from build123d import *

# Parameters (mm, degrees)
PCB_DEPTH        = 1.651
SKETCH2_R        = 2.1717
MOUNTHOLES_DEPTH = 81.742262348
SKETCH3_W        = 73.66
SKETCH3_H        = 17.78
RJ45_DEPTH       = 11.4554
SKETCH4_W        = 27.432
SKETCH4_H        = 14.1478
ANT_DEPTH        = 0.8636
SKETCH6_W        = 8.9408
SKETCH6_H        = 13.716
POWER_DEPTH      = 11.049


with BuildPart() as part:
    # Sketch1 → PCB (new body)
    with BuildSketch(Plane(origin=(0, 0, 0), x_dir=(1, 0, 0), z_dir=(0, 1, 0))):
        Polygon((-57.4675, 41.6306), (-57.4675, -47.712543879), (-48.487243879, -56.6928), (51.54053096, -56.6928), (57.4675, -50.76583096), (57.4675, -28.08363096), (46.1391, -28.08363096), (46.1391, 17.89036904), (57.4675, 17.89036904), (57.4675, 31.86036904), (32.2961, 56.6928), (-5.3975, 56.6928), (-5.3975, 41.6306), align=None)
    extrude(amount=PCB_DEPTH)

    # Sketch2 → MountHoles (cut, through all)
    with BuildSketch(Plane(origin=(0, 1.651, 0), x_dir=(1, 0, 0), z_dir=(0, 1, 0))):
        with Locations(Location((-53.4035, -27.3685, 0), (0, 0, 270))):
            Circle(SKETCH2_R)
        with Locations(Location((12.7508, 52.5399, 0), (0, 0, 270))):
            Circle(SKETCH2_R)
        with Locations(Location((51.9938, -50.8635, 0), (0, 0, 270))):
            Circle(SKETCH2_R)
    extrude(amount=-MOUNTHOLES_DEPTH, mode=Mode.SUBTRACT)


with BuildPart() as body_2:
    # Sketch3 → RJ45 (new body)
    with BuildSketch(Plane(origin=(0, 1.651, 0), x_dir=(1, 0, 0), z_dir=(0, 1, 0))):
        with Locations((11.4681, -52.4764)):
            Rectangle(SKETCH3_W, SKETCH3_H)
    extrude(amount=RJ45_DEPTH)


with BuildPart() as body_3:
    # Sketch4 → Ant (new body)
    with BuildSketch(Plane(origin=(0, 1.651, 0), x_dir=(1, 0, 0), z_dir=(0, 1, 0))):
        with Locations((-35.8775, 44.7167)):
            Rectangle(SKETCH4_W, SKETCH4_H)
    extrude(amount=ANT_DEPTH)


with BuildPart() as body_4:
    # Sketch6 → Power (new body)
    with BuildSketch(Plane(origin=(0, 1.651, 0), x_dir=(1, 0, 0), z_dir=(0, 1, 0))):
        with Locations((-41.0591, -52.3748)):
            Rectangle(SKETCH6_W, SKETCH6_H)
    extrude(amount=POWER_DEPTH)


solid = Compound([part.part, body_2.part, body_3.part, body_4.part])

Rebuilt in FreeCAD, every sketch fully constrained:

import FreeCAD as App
import Part
import Sketcher
from FreeCAD import Vector
Q = App.Units.Quantity

doc = App.newDocument("Part")
body = doc.addObject("PartDesign::Body", "Body")

sketch1 = body.newObject("Sketcher::SketchObject", "Sketch")
sketch1.AttachmentSupport = (doc.getObject("XZ_Plane"), [""])
sketch1.MapMode = "FlatFace"
sketch1.addGeometry(Part.LineSegment(Vector(-57.4675, -41.6306, 0), Vector(-57.4675, 47.712544, 0)), False)
sketch1.addGeometry(Part.LineSegment(Vector(-57.4675, 47.712544, 0), Vector(-48.487244, 56.6928, 0)), False)
sketch1.addGeometry(Part.LineSegment(Vector(-48.487244, 56.6928, 0), Vector(51.540531, 56.6928, 0)), False)
sketch1.addGeometry(Part.LineSegment(Vector(51.540531, 56.6928, 0), Vector(57.4675, 50.765831, 0)), False)
sketch1.addGeometry(Part.LineSegment(Vector(57.4675, 50.765831, 0), Vector(57.4675, 28.083631, 0)), False)
sketch1.addGeometry(Part.LineSegment(Vector(57.4675, 28.083631, 0), Vector(46.1391, 28.083631, 0)), False)
sketch1.addGeometry(Part.LineSegment(Vector(46.1391, 28.083631, 0), Vector(46.1391, -17.890369, 0)), False)
sketch1.addGeometry(Part.LineSegment(Vector(46.1391, -17.890369, 0), Vector(57.4675, -17.890369, 0)), False)
sketch1.addGeometry(Part.LineSegment(Vector(57.4675, -17.890369, 0), Vector(57.4675, -31.860369, 0)), False)
sketch1.addGeometry(Part.LineSegment(Vector(57.4675, -31.860369, 0), Vector(32.2961, -56.6928, 0)), False)
sketch1.addGeometry(Part.LineSegment(Vector(32.2961, -56.6928, 0), Vector(-5.3975, -56.6928, 0)), False)
sketch1.addGeometry(Part.LineSegment(Vector(-5.3975, -56.6928, 0), Vector(-5.3975, -41.6306, 0)), False)
sketch1.addGeometry(Part.LineSegment(Vector(-5.3975, -41.6306, 0), Vector(-57.4675, -41.6306, 0)), False)
sketch1.addConstraint(Sketcher.Constraint("Coincident", 0, 2, 1, 1))
sketch1.addConstraint(Sketcher.Constraint("Coincident", 1, 2, 2, 1))
sketch1.addConstraint(Sketcher.Constraint("Coincident", 2, 2, 3, 1))
sketch1.addConstraint(Sketcher.Constraint("Coincident", 3, 2, 4, 1))
sketch1.addConstraint(Sketcher.Constraint("Coincident", 4, 2, 5, 1))
sketch1.addConstraint(Sketcher.Constraint("Coincident", 5, 2, 6, 1))
sketch1.addConstraint(Sketcher.Constraint("Coincident", 6, 2, 7, 1))
sketch1.addConstraint(Sketcher.Constraint("Coincident", 7, 2, 8, 1))
sketch1.addConstraint(Sketcher.Constraint("Coincident", 8, 2, 9, 1))
sketch1.addConstraint(Sketcher.Constraint("Coincident", 9, 2, 10, 1))
sketch1.addConstraint(Sketcher.Constraint("Coincident", 10, 2, 11, 1))
sketch1.addConstraint(Sketcher.Constraint("Coincident", 11, 2, 12, 1))
sketch1.addConstraint(Sketcher.Constraint("Coincident", 12, 2, 0, 1))
sketch1.addConstraint(Sketcher.Constraint("Vertical", 0))
sketch1.addConstraint(Sketcher.Constraint("Horizontal", 2))
sketch1.addConstraint(Sketcher.Constraint("Vertical", 4))
sketch1.addConstraint(Sketcher.Constraint("Horizontal", 5))
sketch1.addConstraint(Sketcher.Constraint("Vertical", 6))
sketch1.addConstraint(Sketcher.Constraint("Horizontal", 7))
sketch1.addConstraint(Sketcher.Constraint("Vertical", 8))
sketch1.addConstraint(Sketcher.Constraint("Horizontal", 10))
sketch1.addConstraint(Sketcher.Constraint("Vertical", 11))
sketch1.addConstraint(Sketcher.Constraint("Horizontal", 12))
sketch1.addConstraint(Sketcher.Constraint("Perpendicular", 1, 3))
sketch1.addConstraint(Sketcher.Constraint("Vertical", 4, 2, 7, 2))
sketch1.addConstraint(Sketcher.Constraint("Angle", 1, Q("45 deg")))
sketch1.addConstraint(Sketcher.Constraint("Distance", 1, Q("0.5 in")))
sketch1.addConstraint(Sketcher.Constraint("DistanceX", 12, 2, 12, 1, Q("2.05 in")))
sketch1.addConstraint(Sketcher.Constraint("DistanceY", 6, 2, 6, 1, Q("1.81 in")))
sketch1.addConstraint(Sketcher.Constraint("DistanceY", 8, 2, 8, 1, Q("0.55 in")))
sketch1.addConstraint(Sketcher.Constraint("Distance", 3, Q("0.33 in")))
sketch1.addConstraint(Sketcher.Constraint("DistanceX", 5, 2, 5, 1, Q("0.446 in")))
sketch1.addConstraint(Sketcher.Constraint("DistanceX", 10, 2, 10, 1, Q("1.484 in")))
sketch1.addConstraint(Sketcher.Constraint("DistanceY", 4, 2, 4, 1, Q("0.893 in")))
sketch1.addConstraint(Sketcher.Constraint("DistanceY", 11, 1, 11, 2, Q("0.593 in")))
sketch1.addConstraint(Sketcher.Constraint("DistanceY", -1, 1, 1, 2, Q("2.232 in")))
sketch1.addConstraint(Sketcher.Constraint("DistanceY", 9, 2, -1, 1, Q("2.232 in")))
sketch1.addConstraint(Sketcher.Constraint("DistanceX", 0, 2, 3, 2, Q("4.525 in")))
sketch1.addConstraint(Sketcher.Constraint("DistanceX", 0, 2, -1, 1, Q("2.2625 in")))
pad1 = body.newObject("PartDesign::Pad", "Pad")
pad1.Profile = sketch1
pad1.Length = Q("0.065 in")
pad1.Reversed = True

sketch2 = body.newObject("Sketcher::SketchObject", "Sketch001")
sketch2.AttachmentSupport = (doc.getObject("XZ_Plane"), [""])
sketch2.MapMode = "FlatFace"
sketch2.AttachmentOffset = App.Placement(Vector(0, 0, -0.065 * 25.4), App.Rotation())
sketch2.addGeometry(Part.Circle(Vector(-53.4035, 27.3685, 0), Vector(0, 0, 1), 2.1717), False)
sketch2.addGeometry(Part.Circle(Vector(12.7508, -52.5399, 0), Vector(0, 0, 1), 2.1717), False)
sketch2.addGeometry(Part.Circle(Vector(51.9938, 50.8635, 0), Vector(0, 0, 1), 2.1717), False)
sketch2.addConstraint(Sketcher.Constraint("Equal", 0, 1))
sketch2.addConstraint(Sketcher.Constraint("Equal", 1, 2))
sketch2.addConstraint(Sketcher.Constraint("Diameter", 0, Q("0.171 in")))
sketch2.addConstraint(Sketcher.Constraint("DistanceX", -1, 1, 1, 3, Q("0.502 in")))
sketch2.addConstraint(Sketcher.Constraint("DistanceX", -1, 1, 2, 3, Q("2.047 in")))
sketch2.addConstraint(Sketcher.Constraint("DistanceY", 1, 3, 0, 3, Q("3.146 in")))
sketch2.addConstraint(Sketcher.Constraint("DistanceY", 0, 3, 2, 3, Q("0.925 in")))
sketch2.addConstraint(Sketcher.Constraint("DistanceX", 0, 3, -1, 1, Q("2.1025 in")))
sketch2.addConstraint(Sketcher.Constraint("DistanceY", -1, 1, 0, 3, Q("1.0775 in")))
pocket1 = body.newObject("PartDesign::Pocket", "Pocket")
pocket1.Profile = sketch2
pocket1.Type = "ThroughAll"
pocket1.Reversed = True
body2 = doc.addObject("PartDesign::Body", "Body001")

sketch3 = body2.newObject("Sketcher::SketchObject", "Sketch002")
sketch3.AttachmentSupport = (doc.getObject("XZ_Plane001"), [""])
sketch3.MapMode = "FlatFace"
sketch3.AttachmentOffset = App.Placement(Vector(0, 0, -0.065 * 25.4), App.Rotation())
sketch3.addGeometry(Part.LineSegment(Vector(-25.3619, 43.5864, 0), Vector(-25.3619, 61.3664, 0)), False)
sketch3.addGeometry(Part.LineSegment(Vector(-25.3619, 61.3664, 0), Vector(48.2981, 61.3664, 0)), False)
sketch3.addGeometry(Part.LineSegment(Vector(48.2981, 61.3664, 0), Vector(48.2981, 43.5864, 0)), False)
sketch3.addGeometry(Part.LineSegment(Vector(48.2981, 43.5864, 0), Vector(-25.3619, 43.5864, 0)), False)
sketch3.addConstraint(Sketcher.Constraint("Coincident", 0, 2, 1, 1))
sketch3.addConstraint(Sketcher.Constraint("Coincident", 1, 2, 2, 1))
sketch3.addConstraint(Sketcher.Constraint("Coincident", 2, 2, 3, 1))
sketch3.addConstraint(Sketcher.Constraint("Coincident", 3, 2, 0, 1))
sketch3.addConstraint(Sketcher.Constraint("Vertical", 0))
sketch3.addConstraint(Sketcher.Constraint("Horizontal", 1))
sketch3.addConstraint(Sketcher.Constraint("Vertical", 2))
sketch3.addConstraint(Sketcher.Constraint("Horizontal", 3))
sketch3.addConstraint(Sketcher.Constraint("DistanceX", 1, 1, 1, 2, Q("2.9 in")))
sketch3.addConstraint(Sketcher.Constraint("DistanceY", 0, 1, 0, 2, Q("0.7 in")))
sketch3.addConstraint(Sketcher.Constraint("DistanceY", -1, 1, 0, 2, Q("2.416 in")))
sketch3.addConstraint(Sketcher.Constraint("DistanceX", 0, 2, -1, 1, Q("0.9985 in")))
pad2 = body2.newObject("PartDesign::Pad", "Pad001")
pad2.Profile = sketch3
pad2.Length = Q("0.451 in")
pad2.Reversed = True
body3 = doc.addObject("PartDesign::Body", "Body002")

sketch4 = body3.newObject("Sketcher::SketchObject", "Sketch003")
sketch4.AttachmentSupport = (doc.getObject("XZ_Plane002"), [""])
sketch4.MapMode = "FlatFace"
sketch4.AttachmentOffset = App.Placement(Vector(0, 0, -0.065 * 25.4), App.Rotation())
sketch4.addGeometry(Part.LineSegment(Vector(-49.5935, -51.7906, 0), Vector(-49.5935, -37.6428, 0)), False)
sketch4.addGeometry(Part.LineSegment(Vector(-49.5935, -37.6428, 0), Vector(-22.1615, -37.6428, 0)), False)
sketch4.addGeometry(Part.LineSegment(Vector(-22.1615, -37.6428, 0), Vector(-22.1615, -51.7906, 0)), False)
sketch4.addGeometry(Part.LineSegment(Vector(-22.1615, -51.7906, 0), Vector(-49.5935, -51.7906, 0)), False)
sketch4.addConstraint(Sketcher.Constraint("Coincident", 0, 2, 1, 1))
sketch4.addConstraint(Sketcher.Constraint("Coincident", 1, 2, 2, 1))
sketch4.addConstraint(Sketcher.Constraint("Coincident", 2, 2, 3, 1))
sketch4.addConstraint(Sketcher.Constraint("Coincident", 3, 2, 0, 1))
sketch4.addConstraint(Sketcher.Constraint("Vertical", 0))
sketch4.addConstraint(Sketcher.Constraint("Horizontal", 1))
sketch4.addConstraint(Sketcher.Constraint("Vertical", 2))
sketch4.addConstraint(Sketcher.Constraint("Horizontal", 3))
sketch4.addConstraint(Sketcher.Constraint("DistanceX", 1, 1, 1, 2, Q("1.08 in")))
sketch4.addConstraint(Sketcher.Constraint("DistanceY", 0, 1, 0, 2, Q("0.557 in")))
sketch4.addConstraint(Sketcher.Constraint("DistanceY", 0, 2, -1, 1, Q("1.482 in")))
sketch4.addConstraint(Sketcher.Constraint("DistanceX", 0, 2, -1, 1, Q("1.9525 in")))
pad3 = body3.newObject("PartDesign::Pad", "Pad002")
pad3.Profile = sketch4
pad3.Length = Q("0.034 in")
pad3.Reversed = True
body4 = doc.addObject("PartDesign::Body", "Body003")

sketch5 = body4.newObject("Sketcher::SketchObject", "Sketch004")
sketch5.AttachmentSupport = (doc.getObject("XZ_Plane003"), [""])
sketch5.MapMode = "FlatFace"
sketch5.AttachmentOffset = App.Placement(Vector(0, 0, -0.065 * 25.4), App.Rotation())
sketch5.addGeometry(Part.LineSegment(Vector(-45.5295, 45.5168, 0), Vector(-45.5295, 59.2328, 0)), False)
sketch5.addGeometry(Part.LineSegment(Vector(-45.5295, 59.2328, 0), Vector(-36.5887, 59.2328, 0)), False)
sketch5.addGeometry(Part.LineSegment(Vector(-36.5887, 59.2328, 0), Vector(-36.5887, 45.5168, 0)), False)
sketch5.addGeometry(Part.LineSegment(Vector(-36.5887, 45.5168, 0), Vector(-45.5295, 45.5168, 0)), False)
sketch5.addConstraint(Sketcher.Constraint("Coincident", 0, 2, 1, 1))
sketch5.addConstraint(Sketcher.Constraint("Coincident", 1, 2, 2, 1))
sketch5.addConstraint(Sketcher.Constraint("Coincident", 2, 2, 3, 1))
sketch5.addConstraint(Sketcher.Constraint("Coincident", 3, 2, 0, 1))
sketch5.addConstraint(Sketcher.Constraint("Vertical", 0))
sketch5.addConstraint(Sketcher.Constraint("Horizontal", 1))
sketch5.addConstraint(Sketcher.Constraint("Vertical", 2))
sketch5.addConstraint(Sketcher.Constraint("Horizontal", 3))
sketch5.addConstraint(Sketcher.Constraint("DistanceY", 0, 1, 0, 2, Q("0.54 in")))
sketch5.addConstraint(Sketcher.Constraint("DistanceX", 1, 1, 1, 2, Q("0.352 in")))
sketch5.addConstraint(Sketcher.Constraint("DistanceY", -1, 1, 0, 2, Q("2.332 in")))
sketch5.addConstraint(Sketcher.Constraint("DistanceX", 0, 2, -1, 1, Q("1.7925 in")))
pad4 = body4.newObject("PartDesign::Pad", "Pad003")
pad4.Profile = sketch5
pad4.Length = Q("0.435 in")
pad4.Reversed = True

doc.recompute()
